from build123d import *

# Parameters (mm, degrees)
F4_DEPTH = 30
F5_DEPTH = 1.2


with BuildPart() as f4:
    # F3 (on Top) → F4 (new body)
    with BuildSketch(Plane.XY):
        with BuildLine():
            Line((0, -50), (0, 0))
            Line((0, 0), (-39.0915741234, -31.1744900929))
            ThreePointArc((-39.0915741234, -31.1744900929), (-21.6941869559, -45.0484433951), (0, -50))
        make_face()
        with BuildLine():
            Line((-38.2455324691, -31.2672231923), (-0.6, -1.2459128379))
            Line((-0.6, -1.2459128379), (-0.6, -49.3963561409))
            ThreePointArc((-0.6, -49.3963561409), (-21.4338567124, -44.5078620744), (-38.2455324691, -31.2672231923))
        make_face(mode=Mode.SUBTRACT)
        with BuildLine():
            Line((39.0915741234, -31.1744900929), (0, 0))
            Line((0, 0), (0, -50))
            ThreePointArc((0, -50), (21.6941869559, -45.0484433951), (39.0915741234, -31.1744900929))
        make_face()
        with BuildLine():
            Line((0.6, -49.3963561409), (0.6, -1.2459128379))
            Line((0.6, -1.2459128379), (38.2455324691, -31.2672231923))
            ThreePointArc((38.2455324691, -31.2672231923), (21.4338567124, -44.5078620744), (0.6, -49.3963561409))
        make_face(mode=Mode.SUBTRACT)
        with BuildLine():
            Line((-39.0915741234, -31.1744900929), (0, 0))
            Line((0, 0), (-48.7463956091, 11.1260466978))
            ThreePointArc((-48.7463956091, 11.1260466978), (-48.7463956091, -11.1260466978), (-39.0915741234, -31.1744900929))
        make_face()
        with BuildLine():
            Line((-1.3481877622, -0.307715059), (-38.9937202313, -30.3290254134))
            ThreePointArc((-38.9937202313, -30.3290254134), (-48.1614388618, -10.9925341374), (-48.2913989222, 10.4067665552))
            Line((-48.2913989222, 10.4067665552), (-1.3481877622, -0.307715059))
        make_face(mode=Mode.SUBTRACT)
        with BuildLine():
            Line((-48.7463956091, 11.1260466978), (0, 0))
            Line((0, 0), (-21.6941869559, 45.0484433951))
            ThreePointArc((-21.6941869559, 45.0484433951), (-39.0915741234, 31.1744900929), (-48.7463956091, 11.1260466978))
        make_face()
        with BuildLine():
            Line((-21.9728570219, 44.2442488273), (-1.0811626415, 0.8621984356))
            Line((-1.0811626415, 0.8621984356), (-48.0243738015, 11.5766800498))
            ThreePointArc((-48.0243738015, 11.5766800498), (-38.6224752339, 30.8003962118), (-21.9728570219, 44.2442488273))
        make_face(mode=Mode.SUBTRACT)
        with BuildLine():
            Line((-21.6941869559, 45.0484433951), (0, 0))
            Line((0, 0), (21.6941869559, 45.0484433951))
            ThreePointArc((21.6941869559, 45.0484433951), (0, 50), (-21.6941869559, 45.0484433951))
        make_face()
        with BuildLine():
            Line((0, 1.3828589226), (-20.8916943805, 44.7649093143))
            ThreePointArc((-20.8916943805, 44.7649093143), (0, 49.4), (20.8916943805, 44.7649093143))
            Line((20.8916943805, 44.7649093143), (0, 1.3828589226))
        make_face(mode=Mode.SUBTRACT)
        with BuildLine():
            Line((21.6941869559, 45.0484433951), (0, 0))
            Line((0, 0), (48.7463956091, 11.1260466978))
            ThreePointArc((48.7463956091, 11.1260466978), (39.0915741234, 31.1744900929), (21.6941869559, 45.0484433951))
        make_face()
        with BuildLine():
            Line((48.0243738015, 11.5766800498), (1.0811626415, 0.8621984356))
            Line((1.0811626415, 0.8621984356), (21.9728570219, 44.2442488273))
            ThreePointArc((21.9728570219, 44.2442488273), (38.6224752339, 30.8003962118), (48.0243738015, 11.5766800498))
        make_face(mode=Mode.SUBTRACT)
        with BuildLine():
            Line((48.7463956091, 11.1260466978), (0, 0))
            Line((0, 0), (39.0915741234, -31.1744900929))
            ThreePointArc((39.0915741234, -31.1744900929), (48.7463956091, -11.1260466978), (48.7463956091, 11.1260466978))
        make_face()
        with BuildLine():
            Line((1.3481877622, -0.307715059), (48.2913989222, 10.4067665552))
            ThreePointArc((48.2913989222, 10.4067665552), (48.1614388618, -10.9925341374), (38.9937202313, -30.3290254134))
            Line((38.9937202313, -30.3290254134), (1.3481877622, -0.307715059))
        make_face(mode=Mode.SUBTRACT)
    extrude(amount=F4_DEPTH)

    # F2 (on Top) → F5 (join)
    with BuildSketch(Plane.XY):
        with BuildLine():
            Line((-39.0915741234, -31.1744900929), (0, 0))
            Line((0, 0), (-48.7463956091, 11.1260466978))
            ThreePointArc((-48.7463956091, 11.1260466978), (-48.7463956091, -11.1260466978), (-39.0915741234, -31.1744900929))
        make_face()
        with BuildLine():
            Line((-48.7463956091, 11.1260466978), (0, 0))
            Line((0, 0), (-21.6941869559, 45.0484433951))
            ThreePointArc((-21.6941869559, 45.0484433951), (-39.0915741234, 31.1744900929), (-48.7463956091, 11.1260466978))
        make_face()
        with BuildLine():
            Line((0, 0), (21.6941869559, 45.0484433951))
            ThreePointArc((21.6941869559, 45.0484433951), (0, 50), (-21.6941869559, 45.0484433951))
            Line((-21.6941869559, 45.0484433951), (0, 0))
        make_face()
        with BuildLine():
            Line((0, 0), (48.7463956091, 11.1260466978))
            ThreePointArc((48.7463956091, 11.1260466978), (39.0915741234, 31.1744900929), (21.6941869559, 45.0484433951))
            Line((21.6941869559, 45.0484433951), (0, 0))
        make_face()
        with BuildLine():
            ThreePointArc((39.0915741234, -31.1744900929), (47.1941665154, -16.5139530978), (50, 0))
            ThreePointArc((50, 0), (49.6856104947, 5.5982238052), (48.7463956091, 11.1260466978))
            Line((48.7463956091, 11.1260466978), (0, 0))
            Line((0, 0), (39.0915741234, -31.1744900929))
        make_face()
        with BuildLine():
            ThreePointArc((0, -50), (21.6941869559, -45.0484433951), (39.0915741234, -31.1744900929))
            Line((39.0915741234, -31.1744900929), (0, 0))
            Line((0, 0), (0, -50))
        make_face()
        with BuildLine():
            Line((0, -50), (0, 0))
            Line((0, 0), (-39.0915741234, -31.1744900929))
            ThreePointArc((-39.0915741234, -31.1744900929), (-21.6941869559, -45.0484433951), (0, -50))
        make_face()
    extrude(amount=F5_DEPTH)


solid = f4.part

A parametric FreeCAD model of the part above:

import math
import FreeCAD as App
import Part
import Sketcher

V = App.Vector

doc = App.newDocument("Part")
body = doc.addObject("PartDesign::Body", "Body")

# Sketch on XY plane
sketch1 = body.newObject("Sketcher::SketchObject", "Sketch")
sketch1.AttachmentSupport = (doc.getObject("XY_Plane"), [""])
sketch1.MapMode = "FlatFace"
sketch1.addGeometry([
    Part.ArcOfCircle(Part.Circle(V(0, 0, 0), V(0, 0, 1), 50), math.radians(-141.428571), math.radians(-38.571429)),  # 0
    Part.ArcOfCircle(Part.Circle(V(0, 0, 0), V(0, 0, 1), 50), math.radians(-38.571429), math.radians(12.857143)),  # 1
    Part.ArcOfCircle(Part.Circle(V(0, 0, 0), V(0, 0, 1), 50), math.radians(12.857143), math.radians(167.142857)),  # 2
    Part.ArcOfCircle(Part.Circle(V(0, 0, 0), V(0, 0, 1), 50), math.radians(167.142857), math.radians(218.571429)),  # 3
    Part.ArcOfCircle(Part.Circle(V(0, 0, 0), V(0, 0, 1), 49.4), math.radians(-140.732654), math.radians(-90.695917)),  # 4
    Part.LineSegment(V(-38.245532, -31.267223, 0), V(-0.6, -1.245913, 0)),  # 5
    Part.LineSegment(V(-0.6, -1.245913, 0), V(-0.6, -49.396356, 0)),  # 6
    Part.LineSegment(V(-48.291399, 10.406767, 0), V(-1.348188, -0.307715, 0)),  # 7
    Part.LineSegment(V(-1.348188, -0.307715, 0), V(-38.99372, -30.329025, 0)),  # 8
    Part.ArcOfCircle(Part.Circle(V(0, 0, 0), V(0, 0, 1), 49.4), math.radians(167.838774), math.radians(217.875511)),  # 9
    Part.ArcOfCircle(Part.Circle(V(0, 0, 0), V(0, 0, 1), 49.4), math.radians(-89.304083), math.radians(-39.267346)),  # 10
    Part.LineSegment(V(0.6, -49.396356, 0), V(0.6, -1.245913, 0)),  # 11
    Part.LineSegment(V(0.6, -1.245913, 0), V(38.245532, -31.267223, 0)),  # 12
    Part.LineSegment(V(38.99372, -30.329025, 0), V(1.348188, -0.307715, 0)),  # 13
    Part.LineSegment(V(1.348188, -0.307715, 0), V(48.291399, 10.406767, 0)),  # 14
    Part.ArcOfCircle(Part.Circle(V(0, 0, 0), V(0, 0, 1), 49.4), math.radians(-37.875511), math.radians(12.161226)),  # 15
    Part.ArcOfCircle(Part.Circle(V(0, 0, 0), V(0, 0, 1), 49.4), math.radians(116.410203), math.radians(166.44694)),  # 16
    Part.LineSegment(V(-21.972857, 44.244249, 0), V(-1.081163, 0.862198, 0)),  # 17
    Part.LineSegment(V(-1.081163, 0.862198, 0), V(-48.024374, 11.57668, 0)),  # 18
    Part.ArcOfCircle(Part.Circle(V(0, 0, 0), V(0, 0, 1), 49.4), math.radians(13.55306), math.radians(63.589797)),  # 19
    Part.LineSegment(V(48.024374, 11.57668, 0), V(1.081163, 0.862198, 0)),  # 20
    Part.LineSegment(V(1.081163, 0.862198, 0), V(21.972857, 44.244249, 0)),  # 21
    Part.LineSegment(V(20.891694, 44.764909, 0), V(0, 1.382859, 0)),  # 22
    Part.LineSegment(V(0, 1.382859, 0), V(-20.891694, 44.764909, 0)),  # 23
    Part.ArcOfCircle(Part.Circle(V(0, 0, 0), V(0, 0, 1), 49.4), math.radians(64.981632), math.radians(115.018368)),  # 24
], False)
sketch1.addConstraint([
    Sketcher.Constraint("Coincident", 0, 2, 1, 1),
    Sketcher.Constraint("Coincident", 1, 2, 2, 1),
    Sketcher.Constraint("Coincident", 2, 2, 3, 1),
    Sketcher.Constraint("Coincident", 3, 2, 0, 1),
    Sketcher.Constraint("Coincident", 4, 1, 5, 1),
    Sketcher.Constraint("Coincident", 5, 2, 6, 1),
    Sketcher.Constraint("Coincident", 6, 2, 4, 2),
    Sketcher.Constraint("Coincident", 7, 2, 8, 1),
    Sketcher.Constraint("Coincident", 8, 2, 9, 2),
    Sketcher.Constraint("Coincident", 9, 1, 7, 1),
    Sketcher.Constraint("Coincident", 10, 1, 11, 1),
    Sketcher.Constraint("Coincident", 11, 2, 12, 1),
    Sketcher.Constraint("Coincident", 12, 2, 10, 2),
    Sketcher.Constraint("Coincident", 13, 2, 14, 1),
    Sketcher.Constraint("Coincident", 14, 2, 15, 2),
    Sketcher.Constraint("Coincident", 15, 1, 13, 1),
    Sketcher.Constraint("Coincident", 16, 1, 17, 1),
    Sketcher.Constraint("Coincident", 17, 2, 18, 1),
    Sketcher.Constraint("Coincident", 18, 2, 16, 2),
    Sketcher.Constraint("Coincident", 19, 1, 20, 1),
    Sketcher.Constraint("Coincident", 20, 2, 21, 1),
    Sketcher.Constraint("Coincident", 21, 2, 19, 2),
    Sketcher.Constraint("Coincident", 22, 2, 23, 1),
    Sketcher.Constraint("Coincident", 23, 2, 24, 2),
    Sketcher.Constraint("Coincident", 24, 1, 22, 1),
    Sketcher.Constraint("Vertical", 6),
    Sketcher.Constraint("Vertical", 11),
    Sketcher.Constraint("Coincident", 0, 3, -1, 1),
    Sketcher.Constraint("Coincident", 1, 3, -1, 1),
    Sketcher.Constraint("Coincident", 2, 3, -1, 1),
    Sketcher.Constraint("Coincident", 4, 3, -1, 1),
    Sketcher.Constraint("Coincident", 9, 3, -1, 1),
    Sketcher.Constraint("Coincident", 10, 3, -1, 1),
    Sketcher.Constraint("Coincident", 15, 3, -1, 1),
    Sketcher.Constraint("Coincident", 16, 3, -1, 1),
    Sketcher.Constraint("Coincident", 19, 3, -1, 1),
    Sketcher.Constraint("Coincident", 24, 3, -1, 1),
    Sketcher.Constraint("PointOnObject", 22, 2, -2),
    Sketcher.Constraint("Radius", 0, 50.0),
    Sketcher.Constraint("Radius", 3, 50.0),
    Sketcher.Constraint("Radius", 4, 49.4),
    Sketcher.Constraint("Radius", 9, 49.4),
    Sketcher.Constraint("Radius", 10, 49.4),
    Sketcher.Constraint("Radius", 15, 49.4),
    Sketcher.Constraint("Radius", 16, 49.4),
    Sketcher.Constraint("Radius", 19, 49.4),
    Sketcher.Constraint("Radius", 24, 49.4),
    Sketcher.Constraint("DistanceX", 5, 2, -1, 1, 0.6),
    Sketcher.Constraint("DistanceX", -1, 1, 10, 1, 0.6),
    Sketcher.Constraint("DistanceX", 9, 1, -1, 1, 48.291399),
    Sketcher.Constraint("DistanceX", -1, 1, 14, 2, 48.291399),
    Sketcher.Constraint("DistanceY", -1, 1, 17, 2, 0.862198),
    Sketcher.Constraint("DistanceY", -1, 1, 20, 2, 0.862198),
    Sketcher.Constraint("DistanceX", 18, 2, 3, 2, 8.9328),
    Sketcher.Constraint("DistanceX", 0, 2, 19, 1, 8.9328),
    Sketcher.Constraint("DistanceX", 2, 2, 23, 2, 27.854701),
    Sketcher.Constraint("DistanceX", 24, 1, 1, 2, 27.854701),
    Sketcher.Constraint("DistanceY", 6, 2, 6, 1, 48.150443),
    Sketcher.Constraint("DistanceY", 11, 1, 11, 2, 48.150443),
    Sketcher.Constraint("DistanceY", 0, 2, -1, 1, 31.17449),
    Sketcher.Constraint("DistanceY", 3, 2, -1, 1, 31.17449),
    Sketcher.Constraint("DistanceX", 8, 2, -1, 1, 38.99372),
    Sketcher.Constraint("DistanceX", -1, 1, 15, 1, 38.99372),
    Sketcher.Constraint("DistanceY", -1, 1, 16, 1, 44.244249),
    Sketcher.Constraint("DistanceY", -1, 1, 21, 2, 44.244249),
    Sketcher.Constraint("DistanceY", -1, 1, 22, 2, 1.382859),
    Sketcher.Constraint("DistanceY", -1, 1, 23, 2, 44.764909),
    Sketcher.Constraint("DistanceY", -1, 1, 24, 1, 44.764909),
    Sketcher.Constraint("DistanceX", 3, 2, 4, 1, 0.846042),
    Sketcher.Constraint("DistanceY", 8, 2, 7, 2, 30.02131),
    Sketcher.Constraint("DistanceX", 9, 1, 7, 2, 46.943211),
    Sketcher.Constraint("DistanceX", 12, 2, 0, 2, 0.846042),
    Sketcher.Constraint("DistanceX", 13, 2, 14, 2, 46.943211),
    Sketcher.Constraint("DistanceY", 13, 2, 14, 2, 10.714482),
    Sketcher.Constraint("Distance", 17, 48.150443),
    Sketcher.Constraint("Distance", 20, 48.150443),
])
pad1 = body.newObject("PartDesign::Pad", "Pad")
pad1.Profile = sketch1
pad1.Length = 30

# Sketch on XY plane
sketch2 = body.newObject("Sketcher::SketchObject", "Sketch001")
sketch2.AttachmentSupport = (doc.getObject("XY_Plane"), [""])
sketch2.MapMode = "FlatFace"
sketch2.addGeometry([
    Part.ArcOfCircle(Part.Circle(V(0, 0, 0), V(0, 0, 1), 50), math.radians(-38.571429), math.radians(0)),  # 0
    Part.ArcOfCircle(Part.Circle(V(0, 0, 0), V(0, 0, 1), 50), math.radians(0), math.radians(12.857143)),  # 1
    Part.ArcOfCircle(Part.Circle(V(0, 0, 0), V(0, 0, 1), 50), math.radians(12.857143), math.radians(167.142857)),  # 2
    Part.ArcOfCircle(Part.Circle(V(0, 0, 0), V(0, 0, 1), 50), math.radians(167.142857), math.radians(218.571429)),  # 3
    Part.ArcOfCircle(Part.Circle(V(0, 0, 0), V(0, 0, 1), 50), math.radians(-141.428571), math.radians(-38.571429)),  # 4
], False)
sketch2.addConstraint([
    Sketcher.Constraint("Tangent", 0, 2, 1, 1),
    Sketcher.Constraint("Tangent", 1, 2, 2, 1),
    Sketcher.Constraint("Tangent", 2, 2, 3, 1),
    Sketcher.Constraint("Tangent", 3, 2, 4, 1),
    Sketcher.Constraint("Tangent", 4, 2, 0, 1),
    Sketcher.Constraint("Coincident", 0, 3, -1, 1),
    Sketcher.Constraint("Coincident", 2, 3, -1, 1),
    Sketcher.Constraint("PointOnObject", 0, 2, -1),
    Sketcher.Constraint("Horizontal", 1, 2, 2, 2),
    Sketcher.Constraint("Horizontal", 3, 2, 4, 2),
    Sketcher.Constraint("Radius", 0, 50.0),
    Sketcher.Constraint("DistanceY", 3, 2, -1, 1, 31.17449),
    Sketcher.Constraint("DistanceX", 2, 2, 3, 2, 9.654821),
])
pad2 = body.newObject("PartDesign::Pad", "Pad001")
pad2.Profile = sketch2
pad2.Length = 1.2

doc.recompute()
